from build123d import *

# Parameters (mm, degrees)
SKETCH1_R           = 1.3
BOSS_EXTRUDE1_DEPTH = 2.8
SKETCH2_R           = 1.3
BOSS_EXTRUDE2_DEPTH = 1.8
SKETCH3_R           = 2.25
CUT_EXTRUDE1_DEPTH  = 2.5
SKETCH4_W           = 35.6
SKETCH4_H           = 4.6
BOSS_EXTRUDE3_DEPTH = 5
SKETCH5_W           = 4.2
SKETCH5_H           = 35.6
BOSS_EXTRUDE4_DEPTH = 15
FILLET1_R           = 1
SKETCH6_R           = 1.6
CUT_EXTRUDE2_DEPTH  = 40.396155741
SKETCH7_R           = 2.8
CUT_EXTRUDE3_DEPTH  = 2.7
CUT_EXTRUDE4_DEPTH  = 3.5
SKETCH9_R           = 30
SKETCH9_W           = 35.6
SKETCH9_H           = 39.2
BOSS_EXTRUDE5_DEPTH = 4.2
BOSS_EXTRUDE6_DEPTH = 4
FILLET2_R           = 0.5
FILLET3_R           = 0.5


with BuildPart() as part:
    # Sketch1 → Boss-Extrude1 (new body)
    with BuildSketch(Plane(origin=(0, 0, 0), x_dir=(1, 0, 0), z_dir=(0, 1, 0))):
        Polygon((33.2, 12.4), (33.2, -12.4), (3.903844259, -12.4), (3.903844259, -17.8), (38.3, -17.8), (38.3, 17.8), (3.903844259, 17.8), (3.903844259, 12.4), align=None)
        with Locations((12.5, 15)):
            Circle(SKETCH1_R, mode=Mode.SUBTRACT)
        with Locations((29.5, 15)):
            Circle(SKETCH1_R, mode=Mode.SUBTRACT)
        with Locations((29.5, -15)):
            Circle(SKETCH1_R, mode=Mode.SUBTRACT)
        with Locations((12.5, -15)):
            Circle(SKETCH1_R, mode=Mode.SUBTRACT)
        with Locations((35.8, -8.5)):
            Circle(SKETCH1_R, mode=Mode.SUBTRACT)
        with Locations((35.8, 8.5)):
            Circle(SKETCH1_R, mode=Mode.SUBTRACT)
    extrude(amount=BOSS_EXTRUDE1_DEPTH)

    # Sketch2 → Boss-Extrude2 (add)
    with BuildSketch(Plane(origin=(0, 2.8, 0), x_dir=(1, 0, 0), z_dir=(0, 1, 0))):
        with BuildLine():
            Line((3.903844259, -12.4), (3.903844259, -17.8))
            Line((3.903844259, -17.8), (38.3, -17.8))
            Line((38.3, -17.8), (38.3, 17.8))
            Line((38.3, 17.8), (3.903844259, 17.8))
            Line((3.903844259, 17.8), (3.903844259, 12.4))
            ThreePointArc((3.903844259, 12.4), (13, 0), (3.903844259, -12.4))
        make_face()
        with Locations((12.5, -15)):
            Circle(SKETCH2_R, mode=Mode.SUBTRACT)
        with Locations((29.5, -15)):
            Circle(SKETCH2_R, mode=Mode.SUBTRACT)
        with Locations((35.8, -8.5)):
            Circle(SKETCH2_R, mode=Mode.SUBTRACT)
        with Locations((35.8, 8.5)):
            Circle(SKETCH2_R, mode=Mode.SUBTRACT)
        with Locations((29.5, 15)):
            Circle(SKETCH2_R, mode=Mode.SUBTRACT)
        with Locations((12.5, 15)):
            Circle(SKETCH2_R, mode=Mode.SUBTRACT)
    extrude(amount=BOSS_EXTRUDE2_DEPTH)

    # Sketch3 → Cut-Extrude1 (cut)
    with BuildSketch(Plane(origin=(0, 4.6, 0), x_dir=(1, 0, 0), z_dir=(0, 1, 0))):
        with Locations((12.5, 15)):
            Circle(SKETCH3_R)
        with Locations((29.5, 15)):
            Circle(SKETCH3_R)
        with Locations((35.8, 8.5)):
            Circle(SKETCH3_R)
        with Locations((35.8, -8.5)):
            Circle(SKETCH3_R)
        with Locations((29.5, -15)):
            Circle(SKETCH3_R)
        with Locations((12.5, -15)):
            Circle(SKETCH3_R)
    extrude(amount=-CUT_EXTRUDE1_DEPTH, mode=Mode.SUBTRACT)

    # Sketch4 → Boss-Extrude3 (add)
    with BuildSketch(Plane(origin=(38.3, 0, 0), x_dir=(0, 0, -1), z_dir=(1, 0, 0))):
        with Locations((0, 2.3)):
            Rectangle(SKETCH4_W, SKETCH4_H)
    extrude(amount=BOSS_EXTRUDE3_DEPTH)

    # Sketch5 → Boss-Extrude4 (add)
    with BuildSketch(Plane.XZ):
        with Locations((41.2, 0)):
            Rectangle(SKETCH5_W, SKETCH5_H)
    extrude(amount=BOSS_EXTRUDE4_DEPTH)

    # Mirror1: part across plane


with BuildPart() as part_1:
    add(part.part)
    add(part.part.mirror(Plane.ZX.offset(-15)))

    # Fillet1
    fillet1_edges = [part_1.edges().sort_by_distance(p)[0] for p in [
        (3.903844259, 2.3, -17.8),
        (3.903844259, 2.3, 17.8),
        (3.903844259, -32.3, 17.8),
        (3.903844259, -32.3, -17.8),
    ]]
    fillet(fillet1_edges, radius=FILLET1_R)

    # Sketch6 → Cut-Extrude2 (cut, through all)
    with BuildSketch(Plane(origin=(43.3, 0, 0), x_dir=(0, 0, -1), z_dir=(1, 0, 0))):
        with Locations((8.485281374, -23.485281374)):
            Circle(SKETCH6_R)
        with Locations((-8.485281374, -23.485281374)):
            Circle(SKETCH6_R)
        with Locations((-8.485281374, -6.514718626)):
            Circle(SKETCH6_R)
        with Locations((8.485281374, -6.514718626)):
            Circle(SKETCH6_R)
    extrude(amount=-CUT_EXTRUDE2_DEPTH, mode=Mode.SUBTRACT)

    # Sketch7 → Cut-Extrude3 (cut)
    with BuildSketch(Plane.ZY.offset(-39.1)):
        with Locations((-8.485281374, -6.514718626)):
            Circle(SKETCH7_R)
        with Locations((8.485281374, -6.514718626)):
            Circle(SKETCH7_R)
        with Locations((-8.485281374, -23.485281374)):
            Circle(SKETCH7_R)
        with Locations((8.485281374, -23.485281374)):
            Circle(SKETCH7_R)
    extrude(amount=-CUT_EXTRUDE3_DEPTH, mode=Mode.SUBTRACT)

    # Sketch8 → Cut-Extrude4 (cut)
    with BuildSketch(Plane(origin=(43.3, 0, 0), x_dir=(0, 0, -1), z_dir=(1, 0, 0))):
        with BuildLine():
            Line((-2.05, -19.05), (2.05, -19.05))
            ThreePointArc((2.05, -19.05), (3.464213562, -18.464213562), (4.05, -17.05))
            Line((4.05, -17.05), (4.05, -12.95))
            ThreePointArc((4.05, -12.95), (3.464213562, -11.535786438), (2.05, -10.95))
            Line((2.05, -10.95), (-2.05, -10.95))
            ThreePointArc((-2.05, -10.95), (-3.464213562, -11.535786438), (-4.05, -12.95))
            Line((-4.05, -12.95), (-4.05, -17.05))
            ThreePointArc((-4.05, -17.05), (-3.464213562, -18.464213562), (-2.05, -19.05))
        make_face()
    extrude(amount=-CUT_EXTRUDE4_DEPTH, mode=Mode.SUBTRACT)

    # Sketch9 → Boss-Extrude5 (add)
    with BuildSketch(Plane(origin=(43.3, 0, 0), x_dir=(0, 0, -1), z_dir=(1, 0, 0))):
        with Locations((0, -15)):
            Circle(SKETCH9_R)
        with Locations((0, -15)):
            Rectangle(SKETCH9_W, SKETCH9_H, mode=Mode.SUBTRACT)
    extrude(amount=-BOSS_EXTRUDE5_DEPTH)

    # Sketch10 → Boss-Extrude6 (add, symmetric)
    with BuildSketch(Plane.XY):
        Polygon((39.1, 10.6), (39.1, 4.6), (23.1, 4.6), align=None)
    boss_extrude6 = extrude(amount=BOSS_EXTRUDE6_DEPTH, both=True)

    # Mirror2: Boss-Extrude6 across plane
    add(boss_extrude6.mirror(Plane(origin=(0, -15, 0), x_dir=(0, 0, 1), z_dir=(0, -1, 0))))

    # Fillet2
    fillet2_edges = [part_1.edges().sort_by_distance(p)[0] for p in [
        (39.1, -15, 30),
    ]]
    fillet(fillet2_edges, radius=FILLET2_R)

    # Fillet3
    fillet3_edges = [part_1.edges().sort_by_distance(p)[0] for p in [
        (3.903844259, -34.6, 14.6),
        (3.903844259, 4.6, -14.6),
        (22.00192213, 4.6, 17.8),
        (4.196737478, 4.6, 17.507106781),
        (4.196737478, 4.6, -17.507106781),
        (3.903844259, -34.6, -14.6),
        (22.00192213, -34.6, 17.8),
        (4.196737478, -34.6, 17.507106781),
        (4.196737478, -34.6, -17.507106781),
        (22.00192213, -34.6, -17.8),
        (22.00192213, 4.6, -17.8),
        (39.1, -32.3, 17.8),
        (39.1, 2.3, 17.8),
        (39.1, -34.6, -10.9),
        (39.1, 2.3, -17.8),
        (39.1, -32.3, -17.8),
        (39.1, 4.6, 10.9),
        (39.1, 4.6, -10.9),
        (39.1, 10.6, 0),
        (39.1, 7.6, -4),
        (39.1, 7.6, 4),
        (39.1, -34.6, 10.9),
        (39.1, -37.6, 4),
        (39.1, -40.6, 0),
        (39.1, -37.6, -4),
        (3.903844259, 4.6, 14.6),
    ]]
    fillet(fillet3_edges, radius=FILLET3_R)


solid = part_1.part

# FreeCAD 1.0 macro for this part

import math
import FreeCAD as App
import Part
import Sketcher


def edges_at(feature, points):
    """Names of the edges that pass closest to the given points."""
    edges = feature.Shape.Edges
    near = lambda p: min(range(len(edges)), key=lambda i: edges[i].distToShape(Part.Vertex(*p))[0])
    return sorted({f"Edge{near(p) + 1}" for p in points})

doc = App.newDocument("Part")
params = doc.addObject("Spreadsheet::Sheet", "Params")
for row, (alias, value) in enumerate([
    ("sketch1_diameter", "2.6 mm"),
    ("sketch1_height", "24.8 mm"),
    ("sketch1_height2", "5.4 mm"),
    ("pad1_length", "2.8 mm"),
    ("sketch2_radius", "13 mm"),
    ("sketch2_diameter", "2.6 mm"),
    ("sketch2_height", "5.4 mm"),
    ("sketch2_height2", "35.6 mm"),
    ("pad2_length", "1.8 mm"),
    ("sketch3_diameter", "4.5 mm"),
    ("pocket1_length", "2.5 mm"),
    ("sketch4_width", "4.6 mm"),
    ("sketch4_height", "35.6 mm"),
    ("pad3_length", "5 mm"),
    ("sketch5_width", "4.2 mm"),
    ("sketch5_height", "35.6 mm"),
    ("pad4_length", "15 mm"),
    ("fillet_radius", "1 mm"),
    ("sketch6_diameter", "3.2 mm"),
    ("sketch7_diameter", "5.6 mm"),
    ("pocket3_length", "2.7 mm"),
    ("sketch8_radius", "2 mm"),
    ("sketch8_width", "4.1 mm"),
    ("pocket4_length", "3.5 mm"),
    ("sketch9_diameter", "60 mm"),
    ("sketch9_width", "39.2 mm"),
    ("sketch9_height", "35.6 mm"),
    ("pad5_length", "4.2 mm"),
    ("sketch10_width", "16 mm"),
    ("sketch10_height", "6 mm"),
    ("pad6_length", "8 mm"),
    ("fillet2_radius", "0.5 mm"),
    ("fillet3_radius", "0.5 mm"),
], start=1):
    params.set(f"A{row}", alias)
    params.set(f"B{row}", "=" + value)
    params.setAlias(f"B{row}", alias)

body = doc.addObject("PartDesign::Body", "Body")

sketch1 = body.newObject("Sketcher::SketchObject", "Sketch")
sketch1.AttachmentSupport = (doc.getObject("XZ_Plane"), [""])
sketch1.MapMode = "FlatFace"
sketch1.addGeometry([
    Part.LineSegment(App.Vector(33.2, -12.4, 0), App.Vector(33.2, 12.4, 0)),
    Part.LineSegment(App.Vector(33.2, 12.4, 0), App.Vector(3.9, 12.4, 0)),
    Part.LineSegment(App.Vector(3.9, 12.4, 0), App.Vector(3.9, 17.8, 0)),
    Part.LineSegment(App.Vector(3.9, 17.8, 0), App.Vector(38.3, 17.8, 0)),
    Part.LineSegment(App.Vector(38.3, 17.8, 0), App.Vector(38.3, -17.8, 0)),
    Part.LineSegment(App.Vector(38.3, -17.8, 0), App.Vector(3.9, -17.8, 0)),
    Part.LineSegment(App.Vector(3.9, -17.8, 0), App.Vector(3.9, -12.4, 0)),
    Part.LineSegment(App.Vector(3.9, -12.4, 0), App.Vector(33.2, -12.4, 0)),
    Part.Circle(App.Vector(12.5, 15, 0), App.Vector(0, 0, 1), 1.3),
    Part.Circle(App.Vector(29.5, 15, 0), App.Vector(0, 0, 1), 1.3),
    Part.Circle(App.Vector(35.8, 8.5, 0), App.Vector(0, 0, 1), 1.3),
    Part.Circle(App.Vector(12.5, -15, 0), App.Vector(0, 0, 1), 1.3),
    Part.Circle(App.Vector(29.5, -15, 0), App.Vector(0, 0, 1), 1.3),
    Part.Circle(App.Vector(35.8, -8.5, 0), App.Vector(0, 0, 1), 1.3),
], False)
sketch1.addConstraint([
    Sketcher.Constraint("Coincident", 0, 2, 1, 1),
    Sketcher.Constraint("Coincident", 1, 2, 2, 1),
    Sketcher.Constraint("Coincident", 2, 2, 3, 1),
    Sketcher.Constraint("Coincident", 3, 2, 4, 1),
    Sketcher.Constraint("Coincident", 4, 2, 5, 1),
    Sketcher.Constraint("Coincident", 5, 2, 6, 1),
    Sketcher.Constraint("Coincident", 6, 2, 7, 1),
    Sketcher.Constraint("Coincident", 7, 2, 0, 1),
    Sketcher.Constraint("Vertical", 0),
    Sketcher.Constraint("Horizontal", 1),
    Sketcher.Constraint("Vertical", 2),
    Sketcher.Constraint("Horizontal", 3),
    Sketcher.Constraint("Vertical", 4),
    Sketcher.Constraint("Horizontal", 5),
    Sketcher.Constraint("Vertical", 6),
    Sketcher.Constraint("Horizontal", 7),
    Sketcher.Constraint("Equal", 8, 9),
    Sketcher.Constraint("Equal", 9, 10),
    Sketcher.Constraint("Equal", 10, 11),
    Sketcher.Constraint("Equal", 11, 12),
    Sketcher.Constraint("Equal", 12, 13),
    Sketcher.Constraint("Symmetric", 8, 3, 11, 3, -1),
    Sketcher.Constraint("Symmetric", 9, 3, 12, 3, -1),
    Sketcher.Constraint("Symmetric", 10, 3, 13, 3, -1),
    Sketcher.Constraint("Symmetric", 2, 2, 5, 2, -1),
    Sketcher.Constraint("Horizontal", 8, 3, 9, 3),
    Sketcher.Constraint("Equal", 2, 6),
    Sketcher.Constraint("Diameter", 8, 2.6),
    Sketcher.Constraint("DistanceY", 0, 1, 0, 2, 24.8),
    Sketcher.Constraint("DistanceY", 2, 1, 2, 2, 5.4),
    Sketcher.Constraint("DistanceY", -1, 1, 8, 3, 15.0),
    Sketcher.Constraint("DistanceX", 8, 3, 9, 3, 17.0),
    Sketcher.Constraint("DistanceY", 13, 3, 10, 3, 17.0),
    Sketcher.Constraint("DistanceX", -1, 1, 8, 3, 12.5),
    Sketcher.Constraint("DistanceX", -1, 1, 10, 3, 35.8),
    Sketcher.Constraint("DistanceX", -1, 1, 0, 2, 33.2),
    Sketcher.Constraint("DistanceX", -1, 1, 3, 2, 38.3),
    Sketcher.Constraint("DistanceX", 1, 2, 1, 1, 29.296156),
])
sketch1.setExpression("Constraints[27]", "Params.sketch1_diameter")
sketch1.setExpression("Constraints[28]", "Params.sketch1_height")
sketch1.setExpression("Constraints[29]", "Params.sketch1_height2")
pad1 = body.newObject("PartDesign::Pad", "Pad")
pad1.Profile = sketch1
pad1.setExpression("Length", "Params.pad1_length")
pad1.Reversed = True

sketch2 = body.newObject("Sketcher::SketchObject", "Sketch001")
sketch2.AttachmentSupport = (doc.getObject("XZ_Plane"), [""])
sketch2.MapMode = "FlatFace"
sketch2.AttachmentOffset = App.Placement(App.Vector(0, 0, -2.8), App.Rotation())
sketch2.addGeometry([
    Part.LineSegment(App.Vector(3.9, 12.4, 0), App.Vector(3.9, 17.8, 0)),
    Part.LineSegment(App.Vector(3.9, 17.8, 0), App.Vector(38.3, 17.8, 0)),
    Part.LineSegment(App.Vector(38.3, 17.8, 0), App.Vector(38.3, -17.8, 0)),
    Part.LineSegment(App.Vector(38.3, -17.8, 0), App.Vector(3.9, -17.8, 0)),
    Part.LineSegment(App.Vector(3.9, -17.8, 0), App.Vector(3.9, -12.4, 0)),
    Part.ArcOfCircle(Part.Circle(App.Vector(0, 0, 0), App.Vector(0, 0, 1), 13), math.radians(-73), math.radians(73)),
    Part.Circle(App.Vector(12.5, 15, 0), App.Vector(0, 0, 1), 1.3),
    Part.Circle(App.Vector(29.5, 15, 0), App.Vector(0, 0, 1), 1.3),
    Part.Circle(App.Vector(35.8, 8.5, 0), App.Vector(0, 0, 1), 1.3),
    Part.Circle(App.Vector(12.5, -15, 0), App.Vector(0, 0, 1), 1.3),
    Part.Circle(App.Vector(29.5, -15, 0), App.Vector(0, 0, 1), 1.3),
    Part.Circle(App.Vector(35.8, -8.5, 0), App.Vector(0, 0, 1), 1.3),
], False)
sketch2.addConstraint([
    Sketcher.Constraint("Coincident", 0, 2, 1, 1),
    Sketcher.Constraint("Coincident", 1, 2, 2, 1),
    Sketcher.Constraint("Coincident", 2, 2, 3, 1),
    Sketcher.Constraint("Coincident", 3, 2, 4, 1),
    Sketcher.Constraint("Coincident", 4, 2, 5, 1),
    Sketcher.Constraint("Coincident", 5, 2, 0, 1),
    Sketcher.Constraint("Vertical", 0),
    Sketcher.Constraint("Horizontal", 1),
    Sketcher.Constraint("Vertical", 2),
    Sketcher.Constraint("Horizontal", 3),
    Sketcher.Constraint("Vertical", 4),
    Sketcher.Constraint("Coincident", 5, 3, -1, 1),
    Sketcher.Constraint("Equal", 6, 7),
    Sketcher.Constraint("Equal", 7, 8),
    Sketcher.Constraint("Equal", 8, 9),
    Sketcher.Constraint("Equal", 9, 10),
    Sketcher.Constraint("Equal", 10, 11),
    Sketcher.Constraint("Symmetric", 6, 3, 9, 3, -1),
    Sketcher.Constraint("Symmetric", 7, 3, 10, 3, -1),
    Sketcher.Constraint("Symmetric", 8, 3, 11, 3, -1),
    Sketcher.Constraint("Symmetric", 0, 2, 3, 2, -1),
    Sketcher.Constraint("Horizontal", 6, 3, 7, 3),
    Sketcher.Constraint("Radius", 5, 13.0),
    Sketcher.Constraint("Diameter", 6, 2.6),
    Sketcher.Constraint("DistanceY", 0, 1, 0, 2, 5.4),
    Sketcher.Constraint("DistanceY", 2, 2, 2, 1, 35.6),
    Sketcher.Constraint("DistanceY", -1, 1, 6, 3, 15.0),
    Sketcher.Constraint("DistanceX", 6, 3, 7, 3, 17.0),
    Sketcher.Constraint("DistanceY", 11, 3, 8, 3, 17.0),
    Sketcher.Constraint("DistanceX", -1, 1, 6, 3, 12.5),
    Sketcher.Constraint("DistanceX", -1, 1, 8, 3, 35.8),
    Sketcher.Constraint("DistanceX", -1, 1, 1, 2, 38.3),
])
sketch2.setExpression("Constraints[22]", "Params.sketch2_radius")
sketch2.setExpression("Constraints[23]", "Params.sketch2_diameter")
sketch2.setExpression("Constraints[24]", "Params.sketch2_height")
sketch2.setExpression("Constraints[25]", "Params.sketch2_height2")
pad2 = body.newObject("PartDesign::Pad", "Pad001")
pad2.Profile = sketch2
pad2.setExpression("Length", "Params.pad2_length")
pad2.Reversed = True

sketch3 = body.newObject("Sketcher::SketchObject", "Sketch002")
sketch3.AttachmentSupport = (doc.getObject("XZ_Plane"), [""])
sketch3.MapMode = "FlatFace"
sketch3.AttachmentOffset = App.Placement(App.Vector(0, 0, -4.6), App.Rotation())
sketch3.addGeometry([
    Part.Circle(App.Vector(12.5, -15, 0), App.Vector(0, 0, 1), 2.2),
    Part.Circle(App.Vector(29.5, -15, 0), App.Vector(0, 0, 1), 2.2),
    Part.Circle(App.Vector(35.8, -8.5, 0), App.Vector(0, 0, 1), 2.2),
    Part.Circle(App.Vector(35.8, 8.5, 0), App.Vector(0, 0, 1), 2.2),
    Part.Circle(App.Vector(29.5, 15, 0), App.Vector(0, 0, 1), 2.2),
    Part.Circle(App.Vector(12.5, 15, 0), App.Vector(0, 0, 1), 2.2),
], False)
sketch3.addConstraint([
    Sketcher.Constraint("Equal", 0, 1),
    Sketcher.Constraint("Equal", 1, 2),
    Sketcher.Constraint("Equal", 2, 3),
    Sketcher.Constraint("Equal", 3, 4),
    Sketcher.Constraint("Equal", 4, 5),
    Sketcher.Constraint("Symmetric", 2, 3, 3, 3, -1),
    Sketcher.Constraint("Symmetric", 1, 3, 4, 3, -1),
    Sketcher.Constraint("Symmetric", 0, 3, 5, 3, -1),
    Sketcher.Constraint("Horizontal", 0, 3, 1, 3),
    Sketcher.Constraint("Diameter", 0, 4.5),
    Sketcher.Constraint("DistanceY", 0, 3, -1, 1, 15.0),
    Sketcher.Constraint("DistanceX", 0, 3, 1, 3, 17.0),
    Sketcher.Constraint("DistanceY", 2, 3, 3, 3, 17.0),
    Sketcher.Constraint("DistanceX", -1, 1, 0, 3, 12.5),
    Sketcher.Constraint("DistanceX", -1, 1, 2, 3, 35.8),
])
sketch3.setExpression("Constraints[9]", "Params.sketch3_diameter")
pocket1 = body.newObject("PartDesign::Pocket", "Pocket")
pocket1.Profile = sketch3
pocket1.setExpression("Length", "Params.pocket1_length")
pocket1.Reversed = True

sketch4 = body.newObject("Sketcher::SketchObject", "Sketch003")
sketch4.AttachmentSupport = (doc.getObject("YZ_Plane"), [""])
sketch4.MapMode = "FlatFace"
sketch4.AttachmentOffset = App.Placement(App.Vector(0, 0, 38.3), App.Rotation())
sketch4.addGeometry([
    Part.LineSegment(App.Vector(4.6, 17.8, 0), App.Vector(0, 17.8, 0)),
    Part.LineSegment(App.Vector(0, 17.8, 0), App.Vector(0, -17.8, 0)),
    Part.LineSegment(App.Vector(0, -17.8, 0), App.Vector(4.6, -17.8, 0)),
    Part.LineSegment(App.Vector(4.6, -17.8, 0), App.Vector(4.6, 17.8, 0)),
], False)
sketch4.addConstraint([
    Sketcher.Constraint("Coincident", 0, 2, 1, 1),
    Sketcher.Constraint("Coincident", 1, 2, 2, 1),
    Sketcher.Constraint("Coincident", 2, 2, 3, 1),
    Sketcher.Constraint("Coincident", 3, 2, 0, 1),
    Sketcher.Constraint("Horizontal", 0),
    Sketcher.Constraint("Vertical", 1),
    Sketcher.Constraint("Horizontal", 2),
    Sketcher.Constraint("Vertical", 3),
    Sketcher.Constraint("Symmetric", 0, 2, 1, 2, -1, 1),
    Sketcher.Constraint("DistanceX", 0, 2, 0, 1, 4.6),
    Sketcher.Constraint("DistanceY", 1, 2, 1, 1, 35.6),
])
sketch4.setExpression("Constraints[9]", "Params.sketch4_width")
sketch4.setExpression("Constraints[10]", "Params.sketch4_height")
pad3 = body.newObject("PartDesign::Pad", "Pad002")
pad3.Profile = sketch4
pad3.setExpression("Length", "Params.pad3_length")

sketch5 = body.newObject("Sketcher::SketchObject", "Sketch004")
sketch5.AttachmentSupport = (doc.getObject("XZ_Plane"), [""])
sketch5.MapMode = "FlatFace"
sketch5.addGeometry([
    Part.LineSegment(App.Vector(39.1, 17.8, 0), App.Vector(39.1, -17.8, 0)),
    Part.LineSegment(App.Vector(39.1, -17.8, 0), App.Vector(43.3, -17.8, 0)),
    Part.LineSegment(App.Vector(43.3, -17.8, 0), App.Vector(43.3, 17.8, 0)),
    Part.LineSegment(App.Vector(43.3, 17.8, 0), App.Vector(39.1, 17.8, 0)),
], False)
sketch5.addConstraint([
    Sketcher.Constraint("Coincident", 0, 2, 1, 1),
    Sketcher.Constraint("Coincident", 1, 2, 2, 1),
    Sketcher.Constraint("Coincident", 2, 2, 3, 1),
    Sketcher.Constraint("Coincident", 3, 2, 0, 1),
    Sketcher.Constraint("Vertical", 0),
    Sketcher.Constraint("Horizontal", 1),
    Sketcher.Constraint("Vertical", 2),
    Sketcher.Constraint("Horizontal", 3),
    Sketcher.Constraint("DistanceX", 1, 1, 1, 2, 4.2),
    Sketcher.Constraint("DistanceY", 0, 2, 0, 1, 35.6),
    Sketcher.Constraint("DistanceX", -1, 1, 0, 2, 39.1),
    Sketcher.Constraint("DistanceY", 0, 2, -1, 1, 17.8),
])
sketch5.setExpression("Constraints[8]", "Params.sketch5_width")
sketch5.setExpression("Constraints[9]", "Params.sketch5_height")
pad4 = body.newObject("PartDesign::Pad", "Pad003")
pad4.Profile = sketch5
pad4.setExpression("Length", "Params.pad4_length")
body2 = doc.addObject("PartDesign::Body", "Body001")
doc.recompute()

body2.BaseFeature = body
doc.recompute()

mirroring = doc.addObject("Part::Mirroring", "Mirroring")
mirroring.Source = body
mirroring.Base = App.Vector(0, -15, 0)
mirroring.Normal = App.Vector(0, 1, 0)
body3 = doc.addObject("PartDesign::Body", "Body002")
body3.BaseFeature = mirroring
boolean = body2.newObject("PartDesign::Boolean", "Boolean")
boolean.Type = "Fuse"
boolean.addObjects([body3])
doc.recompute()

fillet = body2.newObject("PartDesign::Fillet", "Fillet")
fillet.Base = (boolean, edges_at(boolean, [
    (3.904, 2.3, -17.8),
    (3.904, 2.3, 17.8),
    (3.904, -32.3, 17.8),
    (3.904, -32.3, -17.8),
]))
fillet.setExpression("Radius", "Params.fillet_radius")

sketch6 = body2.newObject("Sketcher::SketchObject", "Sketch005")
sketch6.AttachmentSupport = (doc.getObject("YZ_Plane001"), [""])
sketch6.MapMode = "FlatFace"
sketch6.AttachmentOffset = App.Placement(App.Vector(0, 0, 43.3), App.Rotation())
sketch6.addGeometry([
    Part.Circle(App.Vector(-23.5, -8.5, 0), App.Vector(0, 0, 1), 1.6),
    Part.Circle(App.Vector(-23.5, 8.5, 0), App.Vector(0, 0, 1), 1.6),
    Part.Circle(App.Vector(-6.5, 8.5, 0), App.Vector(0, 0, 1), 1.6),
    Part.Circle(App.Vector(-6.5, -8.5, 0), App.Vector(0, 0, 1), 1.6),
], False)
sketch6.addConstraint([
    Sketcher.Constraint("Equal", 0, 1),
    Sketcher.Constraint("Equal", 1, 2),
    Sketcher.Constraint("Equal", 2, 3),
    Sketcher.Constraint("Symmetric", 0, 3, 1, 3, -1),
    Sketcher.Constraint("Symmetric", 2, 3, 3, 3, -1),
    Sketcher.Constraint("Horizontal", 1, 3, 2, 3),
    Sketcher.Constraint("Diameter", 0, 3.2),
    Sketcher.Constraint("DistanceX", 0, 3, -1, 1, 23.485281),
    Sketcher.Constraint("DistanceY", 0, 3, -1, 1, 8.485281),
    Sketcher.Constraint("DistanceX", 2, 3, -1, 1, 6.514719),
])
sketch6.setExpression("Constraints[6]", "Params.sketch6_diameter")
pocket2 = body2.newObject("PartDesign::Pocket", "Pocket001")
pocket2.Profile = sketch6
pocket2.Type = "ThroughAll"

sketch7 = body2.newObject("Sketcher::SketchObject", "Sketch006")
sketch7.AttachmentSupport = (doc.getObject("YZ_Plane001"), [""])
sketch7.MapMode = "FlatFace"
sketch7.AttachmentOffset = App.Placement(App.Vector(0, 0, 39.1), App.Rotation())
sketch7.addGeometry([
    Part.Circle(App.Vector(-6.5, -8.5, 0), App.Vector(0, 0, 1), 2.8),
    Part.Circle(App.Vector(-6.5, 8.5, 0), App.Vector(0, 0, 1), 2.8),
    Part.Circle(App.Vector(-23.5, -8.5, 0), App.Vector(0, 0, 1), 2.8),
    Part.Circle(App.Vector(-23.5, 8.5, 0), App.Vector(0, 0, 1), 2.8),
], False)
sketch7.addConstraint([
    Sketcher.Constraint("Equal", 0, 1),
    Sketcher.Constraint("Equal", 1, 2),
    Sketcher.Constraint("Equal", 2, 3),
    Sketcher.Constraint("Symmetric", 0, 3, 1, 3, -1),
    Sketcher.Constraint("Symmetric", 2, 3, 3, 3, -1),
    Sketcher.Constraint("Horizontal", 0, 3, 2, 3),
    Sketcher.Constraint("Diameter", 0, 5.6),
    Sketcher.Constraint("DistanceX", 0, 3, -1, 1, 6.514719),
    Sketcher.Constraint("DistanceY", 0, 3, -1, 1, 8.485281),
    Sketcher.Constraint("DistanceX", 2, 3, -1, 1, 23.485281),
])
sketch7.setExpression("Constraints[6]", "Params.sketch7_diameter")
pocket3 = body2.newObject("PartDesign::Pocket", "Pocket002")
pocket3.Profile = sketch7
pocket3.setExpression("Length", "Params.pocket3_length")
pocket3.Reversed = True

sketch8 = body2.newObject("Sketcher::SketchObject", "Sketch007")
sketch8.AttachmentSupport = (doc.getObject("YZ_Plane001"), [""])
sketch8.MapMode = "FlatFace"
sketch8.AttachmentOffset = App.Placement(App.Vector(0, 0, 43.3), App.Rotation())
sketch8.addGeometry([
    Part.LineSegment(App.Vector(-19.1, 2, 0), App.Vector(-19.1, -2, 0)),
    Part.ArcOfCircle(Part.Circle(App.Vector(-17, -2, 0), App.Vector(0, 0, 1), 2), math.radians(-180), math.radians(-90)),
    Part.LineSegment(App.Vector(-17.1, -4, 0), App.Vector(-12.9, -4, 0)),
    Part.ArcOfCircle(Part.Circle(App.Vector(-13, -2, 0), App.Vector(0, 0, 1), 2), math.radians(-90), math.radians(0)),
    Part.LineSegment(App.Vector(-10.9, -2, 0), App.Vector(-10.9, 2, 0)),
    Part.ArcOfCircle(Part.Circle(App.Vector(-13, 2, 0), App.Vector(0, 0, 1), 2), math.radians(0), math.radians(90)),
    Part.LineSegment(App.Vector(-12.9, 4, 0), App.Vector(-17.1, 4, 0)),
    Part.ArcOfCircle(Part.Circle(App.Vector(-17, 2, 0), App.Vector(0, 0, 1), 2), math.radians(90), math.radians(180)),
], False)
sketch8.addConstraint([
    Sketcher.Constraint("Tangent", 0, 2, 1, 1),
    Sketcher.Constraint("Tangent", 1, 2, 2, 1),
    Sketcher.Constraint("Tangent", 2, 2, 3, 1),
    Sketcher.Constraint("Tangent", 3, 2, 4, 1),
    Sketcher.Constraint("Tangent", 4, 2, 5, 1),
    Sketcher.Constraint("Tangent", 5, 2, 6, 1),
    Sketcher.Constraint("Tangent", 6, 2, 7, 1),
    Sketcher.Constraint("Tangent", 7, 2, 0, 1),
    Sketcher.Constraint("Vertical", 0),
    Sketcher.Constraint("Horizontal", 2),
    Sketcher.Constraint("Vertical", 4),
    Sketcher.Constraint("Horizontal", 6),
    Sketcher.Constraint("Equal", 1, 3),
    Sketcher.Constraint("Equal", 3, 5),
    Sketcher.Constraint("Equal", 5, 7),
    Sketcher.Constraint("Equal", 6, 0),
    Sketcher.Constraint("Radius", 1, 2.0),
    Sketcher.Constraint("DistanceX", 2, 1, 2, 2, 4.1),
    Sketcher.Constraint("DistanceX", 1, 3, -1, 1, 17.05),
    Sketcher.Constraint("DistanceY", 1, 3, -1, 1, 2.05),
])
sketch8.setExpression("Constraints[16]", "Params.sketch8_radius")
sketch8.setExpression("Constraints[17]", "Params.sketch8_width")
pocket4 = body2.newObject("PartDesign::Pocket", "Pocket003")
pocket4.Profile = sketch8
pocket4.setExpression("Length", "Params.pocket4_length")

sketch9 = body2.newObject("Sketcher::SketchObject", "Sketch008")
sketch9.AttachmentSupport = (doc.getObject("YZ_Plane001"), [""])
sketch9.MapMode = "FlatFace"
sketch9.AttachmentOffset = App.Placement(App.Vector(0, 0, 43.3), App.Rotation())
sketch9.addGeometry([
    Part.Circle(App.Vector(-15, 0, 0), App.Vector(0, 0, 1), 30),
    Part.LineSegment(App.Vector(-35, -18, 0), App.Vector(-35, 18, 0)),
    Part.LineSegment(App.Vector(-35, 18, 0), App.Vector(5, 18, 0)),
    Part.LineSegment(App.Vector(5, 18, 0), App.Vector(5, -18, 0)),
    Part.LineSegment(App.Vector(5, -18, 0), App.Vector(-35, -18, 0)),
], False)
sketch9.addConstraint([
    Sketcher.Constraint("Coincident", 1, 2, 2, 1),
    Sketcher.Constraint("Coincident", 2, 2, 3, 1),
    Sketcher.Constraint("Coincident", 3, 2, 4, 1),
    Sketcher.Constraint("Coincident", 4, 2, 1, 1),
    Sketcher.Constraint("Vertical", 1),
    Sketcher.Constraint("Horizontal", 2),
    Sketcher.Constraint("Vertical", 3),
    Sketcher.Constraint("Horizontal", 4),
    Sketcher.Constraint("PointOnObject", 0, 3, -1),
    Sketcher.Constraint("Diameter", 0, 60.0),
    Sketcher.Constraint("DistanceX", 2, 1, 2, 2, 39.2),
    Sketcher.Constraint("DistanceY", 1, 1, 1, 2, 35.6),
    Sketcher.Constraint("DistanceX", 0, 3, -1, 1, 15.0),
    Sketcher.Constraint("DistanceX", 1, 2, -1, 1, 34.6),
    Sketcher.Constraint("DistanceY", -1, 1, 1, 2, 17.8),
])
sketch9.setExpression("Constraints[9]", "Params.sketch9_diameter")
sketch9.setExpression("Constraints[10]", "Params.sketch9_width")
sketch9.setExpression("Constraints[11]", "Params.sketch9_height")
pad5 = body2.newObject("PartDesign::Pad", "Pad004")
pad5.Profile = sketch9
pad5.setExpression("Length", "Params.pad5_length")
pad5.Reversed = True

sketch10 = body2.newObject("Sketcher::SketchObject", "Sketch009")
sketch10.AttachmentSupport = (doc.getObject("XY_Plane001"), [""])
sketch10.MapMode = "FlatFace"
sketch10.addGeometry([
    Part.LineSegment(App.Vector(39, 5, 0), App.Vector(39, 11, 0)),
    Part.LineSegment(App.Vector(39, 11, 0), App.Vector(23, 5, 0)),
    Part.LineSegment(App.Vector(23, 5, 0), App.Vector(39, 5, 0)),
], False)
sketch10.addConstraint([
    Sketcher.Constraint("Coincident", 0, 2, 1, 1),
    Sketcher.Constraint("Coincident", 1, 2, 2, 1),
    Sketcher.Constraint("Coincident", 2, 2, 0, 1),
    Sketcher.Constraint("Vertical", 0),
    Sketcher.Constraint("Horizontal", 2),
    Sketcher.Constraint("DistanceX", 2, 1, 2, 2, 16.0),
    Sketcher.Constraint("DistanceY", 0, 1, 0, 2, 6.0),
    Sketcher.Constraint("DistanceX", -1, 1, 0, 2, 39.1),
    Sketcher.Constraint("DistanceY", -1, 1, 0, 2, 10.6),
])
sketch10.setExpression("Constraints[5]", "Params.sketch10_width")
sketch10.setExpression("Constraints[6]", "Params.sketch10_height")
pad6 = body2.newObject("PartDesign::Pad", "Pad005")
pad6.Profile = sketch10
pad6.setExpression("Length", "Params.pad6_length")
pad6.Midplane = True
doc.recompute()

datumplane = body2.newObject("PartDesign::Plane", "DatumPlane")
datumplane.AttachmentSupport = (doc.getObject("XZ_Plane001"), [""])
datumplane.MapMode = "FlatFace"
datumplane.AttachmentOffset = App.Placement(App.Vector(0, 0, 15), App.Rotation())
mirrored = body2.newObject("PartDesign::Mirrored", "Mirrored")
mirrored.Originals = [pad6]
mirrored.MirrorPlane = (datumplane, [""])
body2.Tip = mirrored
doc.recompute()

fillet2 = body2.newObject("PartDesign::Fillet", "Fillet001")
fillet2.Base = (mirrored, edges_at(mirrored, [(39.1, -15, 30)]))
fillet2.setExpression("Radius", "Params.fillet2_radius")
doc.recompute()

fillet3 = body2.newObject("PartDesign::Fillet", "Fillet002")
fillet3.Base = (fillet2, edges_at(fillet2, [
    (3.904, -34.6, 14.6),
    (3.904, 4.6, -14.6),
    (22.002, 4.6, 17.8),
    (4.197, 4.6, 17.507),
    (4.197, 4.6, -17.507),
    (3.904, -34.6, -14.6),
    (22.002, -34.6, 17.8),
    (4.197, -34.6, 17.507),
    (4.197, -34.6, -17.507),
    (22.002, -34.6, -17.8),
    (22.002, 4.6, -17.8),
    (39.1, -32.3, 17.8),
    (39.1, 2.3, 17.8),
    (39.1, -34.6, -10.9),
    (39.1, 2.3, -17.8),
    (39.1, -32.3, -17.8),
    (39.1, 4.6, 10.9),
    (39.1, 4.6, -10.9),
    (39.1, 10.6, 0),
    (39.1, 7.6, -4),
    (39.1, 7.6, 4),
    (39.1, -34.6, 10.9),
    (39.1, -37.6, 4),
    (39.1, -40.6, 0),
    (39.1, -37.6, -4),
    (3.904, 4.6, 14.6),
]))
fillet3.setExpression("Radius", "Params.fillet3_radius")
mirroring.Visibility = False

doc.recompute()
